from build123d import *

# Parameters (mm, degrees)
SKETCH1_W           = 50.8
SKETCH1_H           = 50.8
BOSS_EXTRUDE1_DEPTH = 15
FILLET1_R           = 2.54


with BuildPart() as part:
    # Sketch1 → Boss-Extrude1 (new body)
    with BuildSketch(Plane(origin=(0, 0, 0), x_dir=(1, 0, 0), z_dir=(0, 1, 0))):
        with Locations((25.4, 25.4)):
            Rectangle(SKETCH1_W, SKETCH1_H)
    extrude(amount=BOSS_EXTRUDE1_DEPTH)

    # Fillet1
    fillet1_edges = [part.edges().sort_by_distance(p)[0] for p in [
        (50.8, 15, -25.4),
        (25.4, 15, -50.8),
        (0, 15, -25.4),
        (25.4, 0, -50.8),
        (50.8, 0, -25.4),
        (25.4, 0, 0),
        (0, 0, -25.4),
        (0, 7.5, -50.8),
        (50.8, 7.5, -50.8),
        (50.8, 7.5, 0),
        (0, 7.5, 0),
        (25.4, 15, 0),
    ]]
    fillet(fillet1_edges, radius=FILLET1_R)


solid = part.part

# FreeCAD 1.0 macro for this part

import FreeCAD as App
import Part
import Sketcher

V = App.Vector
Q = App.Units.Quantity


def add_polygon(sketch, points):
    """Adds a closed chain of lines whose ends are joined by coincident constraints."""
    first, n = sketch.GeometryCount, len(points)
    for a, b in zip(points, points[1:] + points[:1]):
        sketch.addGeometry(Part.LineSegment(App.Vector(*a, 0), App.Vector(*b, 0)), False)
    for i in range(n):
        sketch.addConstraint(Sketcher.Constraint("Coincident", first + i, 2, first + (i + 1) % n, 1))

doc = App.newDocument("Part")
body = doc.addObject("PartDesign::Body", "Body")

sketch1 = doc.addObject("Sketcher::SketchObject", "Sketch")
body.addObject(sketch1)
sketch1.AttachmentSupport = (doc.XZ_Plane, [""])
sketch1.MapMode = "FlatFace"
add_polygon(sketch1, [(0, -51), (0, 0), (51, 0), (51, -51)])
sketch1.addConstraint([
    Sketcher.Constraint("Vertical", 0),
    Sketcher.Constraint("Horizontal", 1),
    Sketcher.Constraint("Vertical", 2),
    Sketcher.Constraint("Horizontal", 3),
    Sketcher.Constraint("Coincident", 0, 2, -1, 1),
    Sketcher.Constraint("Equal", 3, 0),
    Sketcher.Constraint("DistanceX", 1, 1, 1, 2, Q("2 in")),
])
pad1 = doc.addObject("PartDesign::Pad", "Pad")
body.addObject(pad1)
pad1.Profile = sketch1
pad1.Length = 15
pad1.Reversed = True
doc.recompute()

fillet = doc.addObject("PartDesign::Fillet", "Fillet")
body.addObject(fillet)
fillet.Base = (pad1, ["Edge1"])
fillet.UseAllEdges = True
fillet.Radius = Q("0.1 in")

doc.recompute()
